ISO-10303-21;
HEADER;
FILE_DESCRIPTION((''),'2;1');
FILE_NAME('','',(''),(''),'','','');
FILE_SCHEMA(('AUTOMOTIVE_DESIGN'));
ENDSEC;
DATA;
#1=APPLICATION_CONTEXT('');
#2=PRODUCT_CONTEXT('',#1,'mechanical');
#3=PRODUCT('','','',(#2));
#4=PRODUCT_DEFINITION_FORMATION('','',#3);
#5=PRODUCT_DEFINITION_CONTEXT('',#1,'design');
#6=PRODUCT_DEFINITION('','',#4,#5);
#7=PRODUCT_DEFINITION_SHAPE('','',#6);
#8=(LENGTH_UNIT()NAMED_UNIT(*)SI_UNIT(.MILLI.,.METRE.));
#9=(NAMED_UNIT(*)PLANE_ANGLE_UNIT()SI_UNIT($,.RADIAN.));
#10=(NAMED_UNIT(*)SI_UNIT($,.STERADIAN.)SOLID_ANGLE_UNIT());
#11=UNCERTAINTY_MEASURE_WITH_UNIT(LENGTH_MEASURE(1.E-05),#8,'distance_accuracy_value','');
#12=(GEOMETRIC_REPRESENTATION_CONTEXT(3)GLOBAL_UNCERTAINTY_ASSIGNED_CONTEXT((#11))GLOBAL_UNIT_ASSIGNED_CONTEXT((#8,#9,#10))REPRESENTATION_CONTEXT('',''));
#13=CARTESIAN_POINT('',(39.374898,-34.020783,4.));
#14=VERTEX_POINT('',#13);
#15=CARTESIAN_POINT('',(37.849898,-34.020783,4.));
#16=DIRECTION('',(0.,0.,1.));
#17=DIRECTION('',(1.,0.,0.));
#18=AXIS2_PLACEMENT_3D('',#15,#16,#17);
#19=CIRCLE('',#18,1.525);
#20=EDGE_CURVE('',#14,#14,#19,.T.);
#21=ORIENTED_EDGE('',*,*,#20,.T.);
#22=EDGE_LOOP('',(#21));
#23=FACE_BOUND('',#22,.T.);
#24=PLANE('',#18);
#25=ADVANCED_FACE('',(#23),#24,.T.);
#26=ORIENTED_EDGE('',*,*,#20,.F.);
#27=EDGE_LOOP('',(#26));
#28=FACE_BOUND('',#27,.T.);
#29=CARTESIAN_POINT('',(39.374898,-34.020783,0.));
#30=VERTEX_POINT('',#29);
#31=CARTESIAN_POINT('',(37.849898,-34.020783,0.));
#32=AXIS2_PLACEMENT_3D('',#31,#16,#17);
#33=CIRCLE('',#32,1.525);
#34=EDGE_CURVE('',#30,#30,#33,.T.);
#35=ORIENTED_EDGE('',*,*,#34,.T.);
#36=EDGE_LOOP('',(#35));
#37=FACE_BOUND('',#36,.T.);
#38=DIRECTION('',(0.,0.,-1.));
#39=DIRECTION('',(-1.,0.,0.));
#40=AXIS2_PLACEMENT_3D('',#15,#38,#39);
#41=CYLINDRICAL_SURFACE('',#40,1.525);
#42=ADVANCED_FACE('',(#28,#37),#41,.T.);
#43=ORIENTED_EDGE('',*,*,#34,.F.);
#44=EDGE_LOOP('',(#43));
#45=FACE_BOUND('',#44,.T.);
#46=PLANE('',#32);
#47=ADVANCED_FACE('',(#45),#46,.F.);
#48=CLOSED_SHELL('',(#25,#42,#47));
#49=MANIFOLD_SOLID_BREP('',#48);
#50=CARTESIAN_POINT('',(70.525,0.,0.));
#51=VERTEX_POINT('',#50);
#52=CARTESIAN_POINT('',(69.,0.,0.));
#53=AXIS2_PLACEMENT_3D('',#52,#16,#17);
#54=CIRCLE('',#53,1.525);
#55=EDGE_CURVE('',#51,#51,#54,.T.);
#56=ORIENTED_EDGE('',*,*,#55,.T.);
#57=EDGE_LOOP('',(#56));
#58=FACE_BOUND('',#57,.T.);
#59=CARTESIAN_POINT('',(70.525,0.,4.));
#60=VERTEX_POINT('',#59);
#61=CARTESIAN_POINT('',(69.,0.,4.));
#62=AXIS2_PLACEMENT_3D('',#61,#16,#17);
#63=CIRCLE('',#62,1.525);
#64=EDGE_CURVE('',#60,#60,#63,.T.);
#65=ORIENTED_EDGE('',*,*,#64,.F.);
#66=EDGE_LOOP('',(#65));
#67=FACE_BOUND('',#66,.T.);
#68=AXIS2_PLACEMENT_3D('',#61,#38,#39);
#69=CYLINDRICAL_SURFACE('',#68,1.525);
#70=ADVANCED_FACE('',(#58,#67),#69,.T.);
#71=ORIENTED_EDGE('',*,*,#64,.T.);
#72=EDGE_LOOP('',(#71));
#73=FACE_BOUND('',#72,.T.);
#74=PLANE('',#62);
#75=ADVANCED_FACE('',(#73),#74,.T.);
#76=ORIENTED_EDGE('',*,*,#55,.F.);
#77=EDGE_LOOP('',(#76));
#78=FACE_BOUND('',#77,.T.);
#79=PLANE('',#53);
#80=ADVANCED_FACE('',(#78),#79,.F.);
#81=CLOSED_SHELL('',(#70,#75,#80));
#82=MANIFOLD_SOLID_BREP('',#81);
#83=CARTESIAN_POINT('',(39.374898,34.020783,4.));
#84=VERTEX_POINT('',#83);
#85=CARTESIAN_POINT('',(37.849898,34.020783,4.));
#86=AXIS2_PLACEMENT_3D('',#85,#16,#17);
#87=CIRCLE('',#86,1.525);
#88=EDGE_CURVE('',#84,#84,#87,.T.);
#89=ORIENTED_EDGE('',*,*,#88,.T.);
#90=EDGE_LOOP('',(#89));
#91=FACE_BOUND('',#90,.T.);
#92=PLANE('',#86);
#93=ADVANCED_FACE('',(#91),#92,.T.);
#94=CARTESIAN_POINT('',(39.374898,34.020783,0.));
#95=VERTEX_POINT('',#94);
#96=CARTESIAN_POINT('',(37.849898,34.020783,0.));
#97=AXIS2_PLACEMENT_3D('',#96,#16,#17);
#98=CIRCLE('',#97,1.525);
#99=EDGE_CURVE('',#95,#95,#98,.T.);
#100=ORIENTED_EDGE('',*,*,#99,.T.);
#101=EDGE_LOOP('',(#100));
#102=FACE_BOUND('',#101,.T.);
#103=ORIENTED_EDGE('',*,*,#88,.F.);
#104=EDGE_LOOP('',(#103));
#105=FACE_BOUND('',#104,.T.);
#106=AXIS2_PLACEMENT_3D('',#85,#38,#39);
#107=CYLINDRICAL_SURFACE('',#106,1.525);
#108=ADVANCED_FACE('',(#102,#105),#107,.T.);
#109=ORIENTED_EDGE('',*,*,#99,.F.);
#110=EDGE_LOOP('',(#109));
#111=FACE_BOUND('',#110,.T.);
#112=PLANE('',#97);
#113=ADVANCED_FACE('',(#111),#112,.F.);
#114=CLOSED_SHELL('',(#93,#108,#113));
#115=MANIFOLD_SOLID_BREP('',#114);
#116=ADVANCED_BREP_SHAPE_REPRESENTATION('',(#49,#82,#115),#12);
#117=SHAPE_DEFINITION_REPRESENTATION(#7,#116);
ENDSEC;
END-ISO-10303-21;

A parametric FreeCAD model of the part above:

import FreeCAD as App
import Part
import Sketcher
from FreeCAD import Vector
Q = App.Units.Quantity

doc = App.newDocument("Part")
body = doc.addObject("PartDesign::Body", "Body")

# Sketch on XY plane
sketch1 = body.newObject("Sketcher::SketchObject", "Sketch")
sketch1.AttachmentSupport = (doc.getObject("XY_Plane"), [""])
sketch1.MapMode = "FlatFace"
sketch1.addGeometry(Part.Circle(Vector(37.8, 34, 0), Vector(0, 0, 1), 1.5), False)
sketch1.addConstraint([
    Sketcher.Constraint("Diameter", 0, Q("3.05 mm")),
    Sketcher.Constraint("DistanceX", -1, 1, 0, 3, Q("37.849898 mm")),
    Sketcher.Constraint("DistanceY", -1, 1, 0, 3, Q("34.020783 mm")),
])
pad1 = body.newObject("PartDesign::Pad", "Pad")
pad1.Profile = sketch1
pad1.Length = 4
body2 = doc.addObject("PartDesign::Body", "Body001")

# Sketch on XY plane
sketch2 = body2.newObject("Sketcher::SketchObject", "Sketch001")
sketch2.AttachmentSupport = (doc.getObject("XY_Plane001"), [""])
sketch2.MapMode = "FlatFace"
sketch2.addGeometry(Part.Circle(Vector(69, 0, 0), Vector(0, 0, 1), 1.5), False)
sketch2.addConstraint([
    Sketcher.Constraint("PointOnObject", 0, 3, -1),
    Sketcher.Constraint("Diameter", 0, Q("3.05 mm")),
    Sketcher.Constraint("DistanceX", -1, 1, 0, 3, Q("69 mm")),
])
pad2 = body2.newObject("PartDesign::Pad", "Pad001")
pad2.Profile = sketch2
pad2.Length = 4
body3 = doc.addObject("PartDesign::Body", "Body002")

# Sketch on XY plane
sketch3 = body3.newObject("Sketcher::SketchObject", "Sketch002")
sketch3.AttachmentSupport = (doc.getObject("XY_Plane002"), [""])
sketch3.MapMode = "FlatFace"
sketch3.addGeometry(Part.Circle(Vector(37.8, -34, 0), Vector(0, 0, 1), 1.5), False)
sketch3.addConstraint([
    Sketcher.Constraint("Diameter", 0, Q("3.05 mm")),
    Sketcher.Constraint("DistanceX", -1, 1, 0, 3, Q("37.849898 mm")),
    Sketcher.Constraint("DistanceY", 0, 3, -1, 1, Q("34.020783 mm")),
])
pad3 = body3.newObject("PartDesign::Pad", "Pad002")
pad3.Profile = sketch3
pad3.Length = 4

doc.recompute()
